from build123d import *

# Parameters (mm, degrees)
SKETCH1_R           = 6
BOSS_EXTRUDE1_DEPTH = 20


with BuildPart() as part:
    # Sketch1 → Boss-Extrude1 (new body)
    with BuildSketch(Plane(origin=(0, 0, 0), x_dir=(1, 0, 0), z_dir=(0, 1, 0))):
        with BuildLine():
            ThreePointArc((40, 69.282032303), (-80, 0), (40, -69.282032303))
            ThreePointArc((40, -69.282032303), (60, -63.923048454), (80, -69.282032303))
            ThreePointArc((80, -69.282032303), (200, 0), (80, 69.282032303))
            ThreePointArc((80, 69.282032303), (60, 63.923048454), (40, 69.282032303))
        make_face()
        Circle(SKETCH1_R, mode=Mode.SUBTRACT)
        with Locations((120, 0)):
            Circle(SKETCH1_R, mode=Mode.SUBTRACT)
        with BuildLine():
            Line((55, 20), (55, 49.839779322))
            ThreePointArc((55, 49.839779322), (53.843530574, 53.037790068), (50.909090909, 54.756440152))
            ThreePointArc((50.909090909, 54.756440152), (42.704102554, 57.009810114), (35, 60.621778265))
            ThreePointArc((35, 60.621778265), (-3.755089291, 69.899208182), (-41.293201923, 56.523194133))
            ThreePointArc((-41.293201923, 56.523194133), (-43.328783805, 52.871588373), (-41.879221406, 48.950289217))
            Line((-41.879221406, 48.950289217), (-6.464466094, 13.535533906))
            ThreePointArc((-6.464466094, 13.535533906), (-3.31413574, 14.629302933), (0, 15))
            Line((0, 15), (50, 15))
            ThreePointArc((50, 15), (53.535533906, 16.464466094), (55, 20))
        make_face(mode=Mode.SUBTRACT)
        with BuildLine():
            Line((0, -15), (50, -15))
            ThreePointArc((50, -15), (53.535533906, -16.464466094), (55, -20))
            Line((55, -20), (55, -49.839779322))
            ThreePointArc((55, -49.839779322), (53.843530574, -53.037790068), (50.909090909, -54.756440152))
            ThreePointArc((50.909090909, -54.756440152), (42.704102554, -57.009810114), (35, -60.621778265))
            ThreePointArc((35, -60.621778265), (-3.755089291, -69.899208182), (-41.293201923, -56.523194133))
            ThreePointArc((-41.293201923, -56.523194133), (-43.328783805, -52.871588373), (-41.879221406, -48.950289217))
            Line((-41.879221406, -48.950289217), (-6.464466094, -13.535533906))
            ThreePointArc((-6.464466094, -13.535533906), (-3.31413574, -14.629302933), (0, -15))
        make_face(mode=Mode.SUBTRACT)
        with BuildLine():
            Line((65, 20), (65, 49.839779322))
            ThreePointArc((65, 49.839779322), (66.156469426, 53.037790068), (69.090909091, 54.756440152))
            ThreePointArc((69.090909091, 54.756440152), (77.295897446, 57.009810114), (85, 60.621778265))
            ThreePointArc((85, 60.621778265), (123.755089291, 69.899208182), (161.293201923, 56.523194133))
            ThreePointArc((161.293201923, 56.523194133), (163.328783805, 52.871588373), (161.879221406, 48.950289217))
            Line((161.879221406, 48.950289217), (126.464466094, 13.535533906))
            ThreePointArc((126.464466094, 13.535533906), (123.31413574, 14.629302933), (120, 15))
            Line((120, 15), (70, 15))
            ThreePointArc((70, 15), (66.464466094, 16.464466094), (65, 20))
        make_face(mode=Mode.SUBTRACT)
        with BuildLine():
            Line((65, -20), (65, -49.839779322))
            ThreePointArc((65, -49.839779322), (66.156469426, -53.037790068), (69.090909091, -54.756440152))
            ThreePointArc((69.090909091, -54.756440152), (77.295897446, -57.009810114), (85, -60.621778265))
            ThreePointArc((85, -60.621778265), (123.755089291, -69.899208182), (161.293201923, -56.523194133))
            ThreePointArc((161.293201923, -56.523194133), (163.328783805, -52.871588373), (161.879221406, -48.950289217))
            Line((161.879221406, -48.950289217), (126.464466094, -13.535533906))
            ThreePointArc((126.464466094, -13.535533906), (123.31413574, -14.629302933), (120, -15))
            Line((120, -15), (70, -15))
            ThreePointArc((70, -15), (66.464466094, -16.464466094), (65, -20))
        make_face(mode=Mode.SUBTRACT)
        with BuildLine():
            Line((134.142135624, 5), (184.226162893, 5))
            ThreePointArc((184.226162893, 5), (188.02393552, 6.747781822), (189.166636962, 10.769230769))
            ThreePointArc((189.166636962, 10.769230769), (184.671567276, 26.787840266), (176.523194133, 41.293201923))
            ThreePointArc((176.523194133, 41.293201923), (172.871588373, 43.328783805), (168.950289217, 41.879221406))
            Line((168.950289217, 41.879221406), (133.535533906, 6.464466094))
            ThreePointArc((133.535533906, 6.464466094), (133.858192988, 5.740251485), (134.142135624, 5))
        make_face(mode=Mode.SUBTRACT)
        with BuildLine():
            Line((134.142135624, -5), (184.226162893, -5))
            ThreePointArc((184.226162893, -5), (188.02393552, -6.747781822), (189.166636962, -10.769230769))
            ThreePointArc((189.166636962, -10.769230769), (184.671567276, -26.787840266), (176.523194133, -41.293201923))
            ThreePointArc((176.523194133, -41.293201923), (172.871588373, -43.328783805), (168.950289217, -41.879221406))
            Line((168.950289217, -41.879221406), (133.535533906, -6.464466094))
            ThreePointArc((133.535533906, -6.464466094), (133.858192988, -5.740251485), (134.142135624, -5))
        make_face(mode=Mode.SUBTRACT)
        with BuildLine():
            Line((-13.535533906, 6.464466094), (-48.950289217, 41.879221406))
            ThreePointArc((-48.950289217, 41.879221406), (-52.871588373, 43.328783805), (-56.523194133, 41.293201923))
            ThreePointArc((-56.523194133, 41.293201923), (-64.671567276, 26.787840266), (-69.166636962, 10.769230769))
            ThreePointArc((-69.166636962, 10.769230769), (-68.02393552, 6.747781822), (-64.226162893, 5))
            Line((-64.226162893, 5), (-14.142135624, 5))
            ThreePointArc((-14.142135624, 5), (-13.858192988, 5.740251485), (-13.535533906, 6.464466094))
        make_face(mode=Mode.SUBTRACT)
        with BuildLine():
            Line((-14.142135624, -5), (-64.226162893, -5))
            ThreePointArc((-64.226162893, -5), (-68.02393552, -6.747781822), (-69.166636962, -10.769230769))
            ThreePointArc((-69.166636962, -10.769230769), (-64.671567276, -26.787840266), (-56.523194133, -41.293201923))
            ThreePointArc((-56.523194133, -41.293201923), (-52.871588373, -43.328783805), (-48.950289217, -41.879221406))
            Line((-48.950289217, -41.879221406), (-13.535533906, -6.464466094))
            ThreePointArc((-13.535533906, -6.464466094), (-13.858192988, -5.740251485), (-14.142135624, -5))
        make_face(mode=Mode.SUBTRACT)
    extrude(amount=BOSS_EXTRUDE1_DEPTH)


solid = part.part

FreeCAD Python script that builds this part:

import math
import FreeCAD as App
import Part
import Sketcher
from FreeCAD import Vector

doc = App.newDocument("Part")
body = doc.addObject("PartDesign::Body", "Body")

sketch1 = doc.addObject("Sketcher::SketchObject", "Sketch")
body.addObject(sketch1)
sketch1.AttachmentSupport = (doc.XZ_Plane, [""])
sketch1.MapMode = "FlatFace"
sketch1.addGeometry(Part.ArcOfCircle(Part.Circle(Vector(0, 0, 0), Vector(0, 0, 1), 80), math.radians(60), math.radians(300)), False)
sketch1.addGeometry(Part.ArcOfCircle(Part.Circle(Vector(60, 103.923048, 0), Vector(0, 0, 1), 40), math.radians(-120), math.radians(-60)), False)
sketch1.addGeometry(Part.ArcOfCircle(Part.Circle(Vector(120, 0, 0), Vector(0, 0, 1), 80), math.radians(-120), math.radians(120)), False)
sketch1.addGeometry(Part.ArcOfCircle(Part.Circle(Vector(60, -103.923048, 0), Vector(0, 0, 1), 40), math.radians(60), math.radians(120)), False)
sketch1.addGeometry(Part.ArcOfCircle(Part.Circle(Vector(0, 0, 0), Vector(0, 0, 1), 15), math.radians(90), math.radians(115.528779)), False)
sketch1.addGeometry(Part.LineSegment(Vector(0, 15, 0), Vector(50, 15, 0)), False)
sketch1.addGeometry(Part.ArcOfCircle(Part.Circle(Vector(50, 20, 0), Vector(0, 0, 1), 5), math.radians(-90), math.radians(0)), False)
sketch1.addGeometry(Part.LineSegment(Vector(55, 20, 0), Vector(55, 49.839779, 0)), False)
sketch1.addGeometry(Part.ArcOfCircle(Part.Circle(Vector(50, 49.839779, 0), Vector(0, 0, 1), 5), math.radians(0), math.radians(79.524318)), False)
sketch1.addGeometry(Part.ArcOfCircle(Part.Circle(Vector(60, 103.923048, 0), Vector(0, 0, 1), 50), math.radians(-120), math.radians(-100.475682)), False)
sketch1.addGeometry(Part.ArcOfCircle(Part.Circle(Vector(0, 0, 0), Vector(0, 0, 1), 70), math.radians(60), math.radians(126.150117)), False)
sketch1.addGeometry(Part.ArcOfCircle(Part.Circle(Vector(-38.343687, 52.485823, 0), Vector(0, 0, 1), 5), math.radians(126.150117), math.radians(225)), False)
sketch1.addGeometry(Part.LineSegment(Vector(-41.879221, 48.950289, 0), Vector(-6.464466, 13.535534, 0)), False)
sketch1.addGeometry(Part.LineSegment(Vector(-64.226163, 5, 0), Vector(-14.142136, 5, 0)), False)
sketch1.addGeometry(Part.ArcOfCircle(Part.Circle(Vector(0, 0, 0), Vector(0, 0, 1), 15), math.radians(154.471221), math.radians(160.528779)), False)
sketch1.addGeometry(Part.LineSegment(Vector(-13.535534, 6.464466, 0), Vector(-48.950289, 41.879221, 0)), False)
sketch1.addGeometry(Part.ArcOfCircle(Part.Circle(Vector(-52.485823, 38.343687, 0), Vector(0, 0, 1), 5), math.radians(45), math.radians(143.849883)), False)
sketch1.addGeometry(Part.ArcOfCircle(Part.Circle(Vector(0, 0, 0), Vector(0, 0, 1), 70), math.radians(143.849883), math.radians(171.150117)), False)
sketch1.addGeometry(Part.ArcOfCircle(Part.Circle(Vector(-64.226163, 10, 0), Vector(0, 0, 1), 5), math.radians(171.150117), math.radians(270)), False)
sketch1.addGeometry(Part.LineSegment(Vector(65, 49.839779, 0), Vector(65, 20, 0)), False)
sketch1.addGeometry(Part.ArcOfCircle(Part.Circle(Vector(70, 20, 0), Vector(0, 0, 1), 5), math.radians(180), math.radians(270)), False)
sketch1.addGeometry(Part.LineSegment(Vector(70, 15, 0), Vector(120, 15, 0)), False)
sketch1.addGeometry(Part.ArcOfCircle(Part.Circle(Vector(120, 0, 0), Vector(0, 0, 1), 15), math.radians(64.471221), math.radians(90)), False)
sketch1.addGeometry(Part.LineSegment(Vector(126.464466, 13.535534, 0), Vector(161.879221, 48.950289, 0)), False)
sketch1.addGeometry(Part.ArcOfCircle(Part.Circle(Vector(158.343687, 52.485823, 0), Vector(0, 0, 1), 5), math.radians(-45), math.radians(53.849883)), False)
sketch1.addGeometry(Part.ArcOfCircle(Part.Circle(Vector(120, 0, 0), Vector(0, 0, 1), 70), math.radians(53.849883), math.radians(120)), False)
sketch1.addGeometry(Part.ArcOfCircle(Part.Circle(Vector(60, 103.923048, 0), Vector(0, 0, 1), 50), math.radians(-79.524318), math.radians(-60)), False)
sketch1.addGeometry(Part.ArcOfCircle(Part.Circle(Vector(70, 49.839779, 0), Vector(0, 0, 1), 5), math.radians(100.475682), math.radians(180)), False)
sketch1.addGeometry(Part.ArcOfCircle(Part.Circle(Vector(120, 0, 0), Vector(0, 0, 1), 15), math.radians(19.471221), math.radians(25.528779)), False)
sketch1.addGeometry(Part.LineSegment(Vector(134.142136, 5, 0), Vector(184.226163, 5, 0)), False)
sketch1.addGeometry(Part.ArcOfCircle(Part.Circle(Vector(184.226163, 10, 0), Vector(0, 0, 1), 5), math.radians(-90), math.radians(8.849883)), False)
sketch1.addGeometry(Part.ArcOfCircle(Part.Circle(Vector(120, 0, 0), Vector(0, 0, 1), 70), math.radians(8.849883), math.radians(36.150117)), False)
sketch1.addGeometry(Part.ArcOfCircle(Part.Circle(Vector(172.485823, 38.343687, 0), Vector(0, 0, 1), 5), math.radians(36.150117), math.radians(135)), False)
sketch1.addGeometry(Part.LineSegment(Vector(168.950289, 41.879221, 0), Vector(133.535534, 6.464466, 0)), False)
sketch1.addGeometry(Part.LineSegment(Vector(-48.950289, -41.879221, 0), Vector(-13.535534, -6.464466, 0)), False)
sketch1.addGeometry(Part.ArcOfCircle(Part.Circle(Vector(0, 0, 0), Vector(0, 0, 1), 15), math.radians(-160.528779), math.radians(-154.471221)), False)
sketch1.addGeometry(Part.LineSegment(Vector(-14.142136, -5, 0), Vector(-64.226163, -5, 0)), False)
sketch1.addGeometry(Part.ArcOfCircle(Part.Circle(Vector(-64.226163, -10, 0), Vector(0, 0, 1), 5), math.radians(90), math.radians(188.849883)), False)
sketch1.addGeometry(Part.ArcOfCircle(Part.Circle(Vector(0, 0, 0), Vector(0, 0, 1), 70), math.radians(-171.150117), math.radians(-143.849883)), False)
sketch1.addGeometry(Part.ArcOfCircle(Part.Circle(Vector(-52.485823, -38.343687, 0), Vector(0, 0, 1), 5), math.radians(-143.849883), math.radians(-45)), False)
sketch1.addGeometry(Part.Circle(Vector(0, 0, 0), Vector(0, 0, 1), 6), False)
sketch1.addGeometry(Part.LineSegment(Vector(55, -49.839779, 0), Vector(55, -20, 0)), False)
sketch1.addGeometry(Part.ArcOfCircle(Part.Circle(Vector(50, -20, 0), Vector(0, 0, 1), 5), math.radians(0), math.radians(90)), False)
sketch1.addGeometry(Part.LineSegment(Vector(50, -15, 0), Vector(0, -15, 0)), False)
sketch1.addGeometry(Part.ArcOfCircle(Part.Circle(Vector(0, 0, 0), Vector(0, 0, 1), 15), math.radians(-115.528779), math.radians(-90)), False)
sketch1.addGeometry(Part.LineSegment(Vector(-6.464466, -13.535534, 0), Vector(-41.879221, -48.950289, 0)), False)
sketch1.addGeometry(Part.ArcOfCircle(Part.Circle(Vector(-38.343687, -52.485823, 0), Vector(0, 0, 1), 5), math.radians(135), math.radians(233.849883)), False)
sketch1.addGeometry(Part.ArcOfCircle(Part.Circle(Vector(0, 0, 0), Vector(0, 0, 1), 70), math.radians(-126.150117), math.radians(-60)), False)
sketch1.addGeometry(Part.ArcOfCircle(Part.Circle(Vector(60, -103.923048, 0), Vector(0, 0, 1), 50), math.radians(100.475682), math.radians(120)), False)
sketch1.addGeometry(Part.ArcOfCircle(Part.Circle(Vector(50, -49.839779, 0), Vector(0, 0, 1), 5), math.radians(-79.524318), math.radians(0)), False)
sketch1.addGeometry(Part.Circle(Vector(120, 0, 0), Vector(0, 0, 1), 6), False)
sketch1.addGeometry(Part.LineSegment(Vector(184.226163, -5, 0), Vector(134.142136, -5, 0)), False)
sketch1.addGeometry(Part.ArcOfCircle(Part.Circle(Vector(120, 0, 0), Vector(0, 0, 1), 15), math.radians(-25.528779), math.radians(-19.471221)), False)
sketch1.addGeometry(Part.LineSegment(Vector(133.535534, -6.464466, 0), Vector(168.950289, -41.879221, 0)), False)
sketch1.addGeometry(Part.ArcOfCircle(Part.Circle(Vector(172.485823, -38.343687, 0), Vector(0, 0, 1), 5), math.radians(-135), math.radians(-36.150117)), False)
sketch1.addGeometry(Part.ArcOfCircle(Part.Circle(Vector(120, 0, 0), Vector(0, 0, 1), 70), math.radians(-36.150117), math.radians(-8.849883)), False)
sketch1.addGeometry(Part.ArcOfCircle(Part.Circle(Vector(184.226163, -10, 0), Vector(0, 0, 1), 5), math.radians(-8.849883), math.radians(90)), False)
sketch1.addGeometry(Part.ArcOfCircle(Part.Circle(Vector(70, -20, 0), Vector(0, 0, 1), 5), math.radians(90), math.radians(180)), False)
sketch1.addGeometry(Part.LineSegment(Vector(65, -20, 0), Vector(65, -49.839779, 0)), False)
sketch1.addGeometry(Part.ArcOfCircle(Part.Circle(Vector(70, -49.839779, 0), Vector(0, 0, 1), 5), math.radians(180), math.radians(259.524318)), False)
sketch1.addGeometry(Part.ArcOfCircle(Part.Circle(Vector(60, -103.923048, 0), Vector(0, 0, 1), 50), math.radians(60), math.radians(79.524318)), False)
sketch1.addGeometry(Part.ArcOfCircle(Part.Circle(Vector(120, 0, 0), Vector(0, 0, 1), 70), math.radians(-120), math.radians(-53.849883)), False)
sketch1.addGeometry(Part.ArcOfCircle(Part.Circle(Vector(158.343687, -52.485823, 0), Vector(0, 0, 1), 5), math.radians(-53.849883), math.radians(45)), False)
sketch1.addGeometry(Part.LineSegment(Vector(161.879221, -48.950289, 0), Vector(126.464466, -13.535534, 0)), False)
sketch1.addGeometry(Part.ArcOfCircle(Part.Circle(Vector(120, 0, 0), Vector(0, 0, 1), 15), math.radians(-90), math.radians(-64.471221)), False)
sketch1.addGeometry(Part.LineSegment(Vector(120, -15, 0), Vector(70, -15, 0)), False)
sketch1.addConstraint(Sketcher.Constraint("Tangent", 0, 1, 1, 1))
sketch1.addConstraint(Sketcher.Constraint("Tangent", 1, 2, 2, 2))
sketch1.addConstraint(Sketcher.Constraint("Tangent", 2, 1, 3, 1))
sketch1.addConstraint(Sketcher.Constraint("Tangent", 3, 2, 0, 2))
sketch1.addConstraint(Sketcher.Constraint("Tangent", 4, 1, 5, 1))
sketch1.addConstraint(Sketcher.Constraint("Tangent", 5, 2, 6, 1))
sketch1.addConstraint(Sketcher.Constraint("Tangent", 6, 2, 7, 1))
sketch1.addConstraint(Sketcher.Constraint("Tangent", 7, 2, 8, 1))
sketch1.addConstraint(Sketcher.Constraint("Tangent", 8, 2, 9, 2))
sketch1.addConstraint(Sketcher.Constraint("Tangent", 9, 1, 10, 1))
sketch1.addConstraint(Sketcher.Constraint("Tangent", 10, 2, 11, 1))
sketch1.addConstraint(Sketcher.Constraint("Tangent", 11, 2, 12, 1))
sketch1.addConstraint(Sketcher.Constraint("Coincident", 12, 2, 4, 2))
sketch1.addConstraint(Sketcher.Constraint("Coincident", 13, 2, 14, 2))
sketch1.addConstraint(Sketcher.Constraint("Coincident", 14, 1, 15, 1))
sketch1.addConstraint(Sketcher.Constraint("Tangent", 15, 2, 16, 1))
sketch1.addConstraint(Sketcher.Constraint("Tangent", 16, 2, 17, 1))
sketch1.addConstraint(Sketcher.Constraint("Tangent", 17, 2, 18, 1))
sketch1.addConstraint(Sketcher.Constraint("Tangent", 18, 2, 13, 1))
sketch1.addConstraint(Sketcher.Constraint("Tangent", 19, 2, 20, 1))
sketch1.addConstraint(Sketcher.Constraint("Tangent", 20, 2, 21, 1))
sketch1.addConstraint(Sketcher.Constraint("Tangent", 21, 2, 22, 2))
sketch1.addConstraint(Sketcher.Constraint("Coincident", 22, 1, 23, 1))
sketch1.addConstraint(Sketcher.Constraint("Tangent", 23, 2, 24, 1))
sketch1.addConstraint(Sketcher.Constraint("Tangent", 24, 2, 25, 1))
sketch1.addConstraint(Sketcher.Constraint("Tangent", 25, 2, 26, 2))
sketch1.addConstraint(Sketcher.Constraint("Tangent", 26, 1, 27, 1))
sketch1.addConstraint(Sketcher.Constraint("Tangent", 27, 2, 19, 1))
sketch1.addConstraint(Sketcher.Constraint("Coincident", 28, 1, 29, 1))
sketch1.addConstraint(Sketcher.Constraint("Tangent", 29, 2, 30, 1))
sketch1.addConstraint(Sketcher.Constraint("Tangent", 30, 2, 31, 1))
sketch1.addConstraint(Sketcher.Constraint("Tangent", 31, 2, 32, 1))
sketch1.addConstraint(Sketcher.Constraint("Tangent", 32, 2, 33, 1))
sketch1.addConstraint(Sketcher.Constraint("Coincident", 33, 2, 28, 2))
sketch1.addConstraint(Sketcher.Constraint("Coincident", 34, 2, 35, 2))
sketch1.addConstraint(Sketcher.Constraint("Coincident", 35, 1, 36, 1))
sketch1.addConstraint(Sketcher.Constraint("Tangent", 36, 2, 37, 1))
sketch1.addConstraint(Sketcher.Constraint("Tangent", 37, 2, 38, 1))
sketch1.addConstraint(Sketcher.Constraint("Tangent", 38, 2, 39, 1))
sketch1.addConstraint(Sketcher.Constraint("Tangent", 39, 2, 34, 1))
sketch1.addConstraint(Sketcher.Constraint("Tangent", 41, 2, 42, 1))
sketch1.addConstraint(Sketcher.Constraint("Tangent", 42, 2, 43, 1))
sketch1.addConstraint(Sketcher.Constraint("Tangent", 43, 2, 44, 2))
sketch1.addConstraint(Sketcher.Constraint("Coincident", 44, 1, 45, 1))
sketch1.addConstraint(Sketcher.Constraint("Tangent", 45, 2, 46, 1))
sketch1.addConstraint(Sketcher.Constraint("Tangent", 46, 2, 47, 1))
sketch1.addConstraint(Sketcher.Constraint("Tangent", 47, 2, 48, 2))
sketch1.addConstraint(Sketcher.Constraint("Tangent", 48, 1, 49, 1))
sketch1.addConstraint(Sketcher.Constraint("Tangent", 49, 2, 41, 1))
sketch1.addConstraint(Sketcher.Constraint("Coincident", 51, 2, 52, 2))
sketch1.addConstraint(Sketcher.Constraint("Coincident", 52, 1, 53, 1))
sketch1.addConstraint(Sketcher.Constraint("Tangent", 53, 2, 54, 1))
sketch1.addConstraint(Sketcher.Constraint("Tangent", 54, 2, 55, 1))
sketch1.addConstraint(Sketcher.Constraint("Tangent", 55, 2, 56, 1))
sketch1.addConstraint(Sketcher.Constraint("Tangent", 56, 2, 51, 1))
sketch1.addConstraint(Sketcher.Constraint("Tangent", 57, 2, 58, 1))
sketch1.addConstraint(Sketcher.Constraint("Tangent", 58, 2, 59, 1))
sketch1.addConstraint(Sketcher.Constraint("Tangent", 59, 2, 60, 2))
sketch1.addConstraint(Sketcher.Constraint("Tangent", 60, 1, 61, 1))
sketch1.addConstraint(Sketcher.Constraint("Tangent", 61, 2, 62, 1))
sketch1.addConstraint(Sketcher.Constraint("Tangent", 62, 2, 63, 1))
sketch1.addConstraint(Sketcher.Constraint("Coincident", 63, 2, 64, 2))
sketch1.addConstraint(Sketcher.Constraint("Tangent", 64, 1, 65, 1))
sketch1.addConstraint(Sketcher.Constraint("Tangent", 65, 2, 57, 1))
sketch1.addConstraint(Sketcher.Constraint("Horizontal", 5))
sketch1.addConstraint(Sketcher.Constraint("Vertical", 7))
sketch1.addConstraint(Sketcher.Constraint("Horizontal", 13))
sketch1.addConstraint(Sketcher.Constraint("Vertical", 19))
sketch1.addConstraint(Sketcher.Constraint("Horizontal", 21))
sketch1.addConstraint(Sketcher.Constraint("Horizontal", 29))
sketch1.addConstraint(Sketcher.Constraint("Horizontal", 36))
sketch1.addConstraint(Sketcher.Constraint("Vertical", 41))
sketch1.addConstraint(Sketcher.Constraint("Horizontal", 43))
sketch1.addConstraint(Sketcher.Constraint("Horizontal", 51))
sketch1.addConstraint(Sketcher.Constraint("Vertical", 58))
sketch1.addConstraint(Sketcher.Constraint("Horizontal", 65))
sketch1.addConstraint(Sketcher.Constraint("Coincident", 0, 3, -1, 1))
sketch1.addConstraint(Sketcher.Constraint("Coincident", 4, 3, -1, 1))
sketch1.addConstraint(Sketcher.Constraint("Coincident", 10, 3, -1, 1))
sketch1.addConstraint(Sketcher.Constraint("Coincident", 14, 3, -1, 1))
sketch1.addConstraint(Sketcher.Constraint("Coincident", 17, 3, -1, 1))
sketch1.addConstraint(Sketcher.Constraint("Coincident", 35, 3, -1, 1))
sketch1.addConstraint(Sketcher.Constraint("Coincident", 38, 3, -1, 1))
sketch1.addConstraint(Sketcher.Constraint("Coincident", 40, 3, -1, 1))
sketch1.addConstraint(Sketcher.Constraint("Coincident", 44, 3, -1, 1))
sketch1.addConstraint(Sketcher.Constraint("Coincident", 47, 3, -1, 1))
sketch1.addConstraint(Sketcher.Constraint("Coincident", 9, 3, 1, 3))
sketch1.addConstraint(Sketcher.Constraint("Coincident", 22, 3, 2, 3))
sketch1.addConstraint(Sketcher.Constraint("Coincident", 25, 3, 2, 3))
sketch1.addConstraint(Sketcher.Constraint("Coincident", 26, 3, 1, 3))
sketch1.addConstraint(Sketcher.Constraint("Coincident", 28, 3, 2, 3))
sketch1.addConstraint(Sketcher.Constraint("Coincident", 31, 3, 2, 3))
sketch1.addConstraint(Sketcher.Constraint("Coincident", 48, 3, 3, 3))
sketch1.addConstraint(Sketcher.Constraint("Coincident", 50, 3, 2, 3))
sketch1.addConstraint(Sketcher.Constraint("Coincident", 52, 3, 2, 3))
sketch1.addConstraint(Sketcher.Constraint("Coincident", 55, 3, 2, 3))
sketch1.addConstraint(Sketcher.Constraint("Coincident", 60, 3, 3, 3))
sketch1.addConstraint(Sketcher.Constraint("Coincident", 61, 3, 2, 3))
sketch1.addConstraint(Sketcher.Constraint("Coincident", 64, 3, 2, 3))
sketch1.addConstraint(Sketcher.Constraint("Equal", 0, 2))
sketch1.addConstraint(Sketcher.Constraint("Equal", 1, 3))
sketch1.addConstraint(Sketcher.Constraint("Equal", 6, 8))
sketch1.addConstraint(Sketcher.Constraint("Equal", 8, 11))
sketch1.addConstraint(Sketcher.Constraint("Equal", 4, 14))
sketch1.addConstraint(Sketcher.Constraint("Equal", 11, 16))
sketch1.addConstraint(Sketcher.Constraint("Equal", 10, 17))
sketch1.addConstraint(Sketcher.Constraint("Equal", 16, 18))
sketch1.addConstraint(Sketcher.Constraint("Equal", 18, 20))
sketch1.addConstraint(Sketcher.Constraint("Equal", 14, 22))
sketch1.addConstraint(Sketcher.Constraint("Equal", 20, 24))
sketch1.addConstraint(Sketcher.Constraint("Equal", 17, 25))
sketch1.addConstraint(Sketcher.Constraint("Equal", 24, 27))
sketch1.addConstraint(Sketcher.Constraint("Equal", 22, 28))
sketch1.addConstraint(Sketcher.Constraint("Equal", 27, 30))
sketch1.addConstraint(Sketcher.Constraint("Equal", 25, 31))
sketch1.addConstraint(Sketcher.Constraint("Equal", 30, 32))
sketch1.addConstraint(Sketcher.Constraint("Equal", 28, 35))
sketch1.addConstraint(Sketcher.Constraint("Equal", 32, 37))
sketch1.addConstraint(Sketcher.Constraint("Equal", 31, 38))
sketch1.addConstraint(Sketcher.Constraint("Equal", 37, 39))
sketch1.addConstraint(Sketcher.Constraint("Equal", 39, 42))
sketch1.addConstraint(Sketcher.Constraint("Equal", 35, 44))
sketch1.addConstraint(Sketcher.Constraint("Equal", 42, 46))
sketch1.addConstraint(Sketcher.Constraint("Equal", 38, 47))
sketch1.addConstraint(Sketcher.Constraint("Equal", 46, 49))
sketch1.addConstraint(Sketcher.Constraint("Equal", 40, 50))
sketch1.addConstraint(Sketcher.Constraint("Equal", 44, 52))
sketch1.addConstraint(Sketcher.Constraint("Equal", 49, 54))
sketch1.addConstraint(Sketcher.Constraint("Equal", 47, 55))
sketch1.addConstraint(Sketcher.Constraint("Equal", 54, 56))
sketch1.addConstraint(Sketcher.Constraint("Equal", 56, 57))
sketch1.addConstraint(Sketcher.Constraint("Equal", 57, 59))
sketch1.addConstraint(Sketcher.Constraint("Equal", 48, 60))
sketch1.addConstraint(Sketcher.Constraint("Equal", 59, 62))
sketch1.addConstraint(Sketcher.Constraint("Equal", 52, 64))
sketch1.addConstraint(Sketcher.Constraint("Symmetric", 8, 3, 49, 3, -1))
sketch1.addConstraint(Sketcher.Constraint("Symmetric", 15, 2, 39, 2, -1))
sketch1.addConstraint(Sketcher.Constraint("Symmetric", 11, 2, 45, 2, -1))
sketch1.addConstraint(Sketcher.Constraint("Symmetric", 32, 2, 53, 2, -1))
sketch1.addConstraint(Sketcher.Constraint("Symmetric", 23, 2, 62, 2, -1))
sketch1.addConstraint(Sketcher.Constraint("Parallel", 12, 15))
sketch1.addConstraint(Sketcher.Constraint("Perpendicular", 15, 23))
sketch1.addConstraint(Sketcher.Constraint("Parallel", 23, 33))
sketch1.addConstraint(Sketcher.Constraint("Parallel", 33, 34))
sketch1.addConstraint(Sketcher.Constraint("Horizontal", 11, 3, 24, 3))
sketch1.addConstraint(Sketcher.Constraint("Horizontal", 8, 3, 27, 3))
sketch1.addConstraint(Sketcher.Constraint("Horizontal", 18, 3, 30, 3))
sketch1.addConstraint(Sketcher.Constraint("Horizontal", 16, 3, 32, 3))
sketch1.addConstraint(Sketcher.Constraint("Horizontal", 37, 3, 56, 3))
sketch1.addConstraint(Sketcher.Constraint("Horizontal", 49, 3, 59, 3))
sketch1.addConstraint(Sketcher.Constraint("Vertical", 18, 3, 37, 3))
sketch1.addConstraint(Sketcher.Constraint("Equal", 12, 15))
sketch1.addConstraint(Sketcher.Constraint("Diameter", 40, 12.0))
sketch1.addConstraint(Sketcher.Constraint("Radius", 0, 80.0))
sketch1.addConstraint(Sketcher.Constraint("Radius", 1, 40.0))
sketch1.addConstraint(Sketcher.Constraint("Radius", 4, 15.0))
sketch1.addConstraint(Sketcher.Constraint("Radius", 6, 5.0))
sketch1.addConstraint(Sketcher.Constraint("Radius", 9, 50.0))
sketch1.addConstraint(Sketcher.Constraint("DistanceX", 5, 1, 5, 2, 50.0))
sketch1.addConstraint(Sketcher.Constraint("DistanceX", -1, 1, 1, 3, 60.0))
sketch1.addConstraint(Sketcher.Constraint("DistanceY", -1, 1, 18, 3, 10.0))
sketch1.addConstraint(Sketcher.Constraint("DistanceX", 10, 2, -1, 1, 41.293202))
pad1 = doc.addObject("PartDesign::Pad", "Pad")
body.addObject(pad1)
pad1.Profile = sketch1
pad1.Length = 20
pad1.Reversed = True

doc.recompute()
